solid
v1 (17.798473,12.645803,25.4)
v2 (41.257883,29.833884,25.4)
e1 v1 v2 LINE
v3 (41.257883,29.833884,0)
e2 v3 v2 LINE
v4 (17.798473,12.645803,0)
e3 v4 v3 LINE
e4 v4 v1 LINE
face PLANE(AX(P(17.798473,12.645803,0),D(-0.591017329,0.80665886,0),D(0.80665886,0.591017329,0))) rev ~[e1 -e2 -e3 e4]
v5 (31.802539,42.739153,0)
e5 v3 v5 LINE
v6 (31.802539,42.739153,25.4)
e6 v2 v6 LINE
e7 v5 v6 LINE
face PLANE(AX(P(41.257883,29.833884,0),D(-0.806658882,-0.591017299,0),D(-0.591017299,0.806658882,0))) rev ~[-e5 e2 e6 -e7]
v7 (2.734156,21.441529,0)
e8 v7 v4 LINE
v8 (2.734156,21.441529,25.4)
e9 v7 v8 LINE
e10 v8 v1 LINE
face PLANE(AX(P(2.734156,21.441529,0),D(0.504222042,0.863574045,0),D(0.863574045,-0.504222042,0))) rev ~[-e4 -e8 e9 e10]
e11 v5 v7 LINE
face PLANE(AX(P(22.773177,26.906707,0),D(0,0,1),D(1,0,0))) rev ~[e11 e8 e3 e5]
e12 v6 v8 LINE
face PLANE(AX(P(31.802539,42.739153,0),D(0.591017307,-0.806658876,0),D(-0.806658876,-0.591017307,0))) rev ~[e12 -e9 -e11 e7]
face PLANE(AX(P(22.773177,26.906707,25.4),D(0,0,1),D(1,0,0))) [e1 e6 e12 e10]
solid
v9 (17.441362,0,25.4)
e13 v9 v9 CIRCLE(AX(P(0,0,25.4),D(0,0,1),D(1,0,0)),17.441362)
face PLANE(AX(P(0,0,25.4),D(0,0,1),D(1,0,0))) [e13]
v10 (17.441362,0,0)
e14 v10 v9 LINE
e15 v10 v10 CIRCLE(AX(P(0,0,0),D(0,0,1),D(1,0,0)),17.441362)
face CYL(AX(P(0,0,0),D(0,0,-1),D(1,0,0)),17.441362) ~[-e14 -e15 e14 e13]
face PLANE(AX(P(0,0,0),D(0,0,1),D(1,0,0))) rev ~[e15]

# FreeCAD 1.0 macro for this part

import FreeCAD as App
import Part
import Sketcher
from FreeCAD import Vector
Q = App.Units.Quantity


def add_polygon(sketch, points):
    """Adds a closed chain of lines whose ends are joined by coincident constraints."""
    first, n = sketch.GeometryCount, len(points)
    for a, b in zip(points, points[1:] + points[:1]):
        sketch.addGeometry(Part.LineSegment(App.Vector(*a, 0), App.Vector(*b, 0)), False)
    for i in range(n):
        sketch.addConstraint(Sketcher.Constraint("Coincident", first + i, 2, first + (i + 1) % n, 1))

doc = App.newDocument("Part")
body = doc.addObject("PartDesign::Body", "Body")
body.AllowCompound = True

sketch1 = doc.addObject("Sketcher::SketchObject", "Sketch")
body.addObject(sketch1)
sketch1.AttachmentSupport = (doc.XY_Plane, [""])
sketch1.MapMode = "FlatFace"
sketch1.addGeometry(Part.Circle(Vector(0, 0, 0), Vector(0, 0, 1), 17), False)
add_polygon(sketch1, [(32, 43), (3, 21), (18, 13), (41, 30)])
sketch1.addConstraint(Sketcher.Constraint("Coincident", 0, 3, -1, 1))
sketch1.addConstraint(Sketcher.Constraint("Parallel", 1, 3))
sketch1.addConstraint(Sketcher.Constraint("Perpendicular", 3, 4))
sketch1.addConstraint(Sketcher.Constraint("Diameter", 0, 34.882724))
sketch1.addConstraint(Sketcher.Constraint("Distance", 4, 15.998422))
sketch1.addConstraint(Sketcher.Constraint("DistanceY", -1, 1, 1, 2, 21.441529))
sketch1.addConstraint(Sketcher.Constraint("DistanceX", -1, 1, 4, 2, 31.802539))
sketch1.addConstraint(Sketcher.Constraint("DistanceX", 2, 2, 3, 2, 23.45941))
sketch1.addConstraint(Sketcher.Constraint("DistanceY", 2, 2, 3, 2, 17.188081))
sketch1.addConstraint(Sketcher.Constraint("Distance", 1, 36.035534))
pad1 = doc.addObject("PartDesign::Pad", "Pad")
body.addObject(pad1)
pad1.Profile = sketch1
pad1.Length = Q("1 in")

doc.recompute()
